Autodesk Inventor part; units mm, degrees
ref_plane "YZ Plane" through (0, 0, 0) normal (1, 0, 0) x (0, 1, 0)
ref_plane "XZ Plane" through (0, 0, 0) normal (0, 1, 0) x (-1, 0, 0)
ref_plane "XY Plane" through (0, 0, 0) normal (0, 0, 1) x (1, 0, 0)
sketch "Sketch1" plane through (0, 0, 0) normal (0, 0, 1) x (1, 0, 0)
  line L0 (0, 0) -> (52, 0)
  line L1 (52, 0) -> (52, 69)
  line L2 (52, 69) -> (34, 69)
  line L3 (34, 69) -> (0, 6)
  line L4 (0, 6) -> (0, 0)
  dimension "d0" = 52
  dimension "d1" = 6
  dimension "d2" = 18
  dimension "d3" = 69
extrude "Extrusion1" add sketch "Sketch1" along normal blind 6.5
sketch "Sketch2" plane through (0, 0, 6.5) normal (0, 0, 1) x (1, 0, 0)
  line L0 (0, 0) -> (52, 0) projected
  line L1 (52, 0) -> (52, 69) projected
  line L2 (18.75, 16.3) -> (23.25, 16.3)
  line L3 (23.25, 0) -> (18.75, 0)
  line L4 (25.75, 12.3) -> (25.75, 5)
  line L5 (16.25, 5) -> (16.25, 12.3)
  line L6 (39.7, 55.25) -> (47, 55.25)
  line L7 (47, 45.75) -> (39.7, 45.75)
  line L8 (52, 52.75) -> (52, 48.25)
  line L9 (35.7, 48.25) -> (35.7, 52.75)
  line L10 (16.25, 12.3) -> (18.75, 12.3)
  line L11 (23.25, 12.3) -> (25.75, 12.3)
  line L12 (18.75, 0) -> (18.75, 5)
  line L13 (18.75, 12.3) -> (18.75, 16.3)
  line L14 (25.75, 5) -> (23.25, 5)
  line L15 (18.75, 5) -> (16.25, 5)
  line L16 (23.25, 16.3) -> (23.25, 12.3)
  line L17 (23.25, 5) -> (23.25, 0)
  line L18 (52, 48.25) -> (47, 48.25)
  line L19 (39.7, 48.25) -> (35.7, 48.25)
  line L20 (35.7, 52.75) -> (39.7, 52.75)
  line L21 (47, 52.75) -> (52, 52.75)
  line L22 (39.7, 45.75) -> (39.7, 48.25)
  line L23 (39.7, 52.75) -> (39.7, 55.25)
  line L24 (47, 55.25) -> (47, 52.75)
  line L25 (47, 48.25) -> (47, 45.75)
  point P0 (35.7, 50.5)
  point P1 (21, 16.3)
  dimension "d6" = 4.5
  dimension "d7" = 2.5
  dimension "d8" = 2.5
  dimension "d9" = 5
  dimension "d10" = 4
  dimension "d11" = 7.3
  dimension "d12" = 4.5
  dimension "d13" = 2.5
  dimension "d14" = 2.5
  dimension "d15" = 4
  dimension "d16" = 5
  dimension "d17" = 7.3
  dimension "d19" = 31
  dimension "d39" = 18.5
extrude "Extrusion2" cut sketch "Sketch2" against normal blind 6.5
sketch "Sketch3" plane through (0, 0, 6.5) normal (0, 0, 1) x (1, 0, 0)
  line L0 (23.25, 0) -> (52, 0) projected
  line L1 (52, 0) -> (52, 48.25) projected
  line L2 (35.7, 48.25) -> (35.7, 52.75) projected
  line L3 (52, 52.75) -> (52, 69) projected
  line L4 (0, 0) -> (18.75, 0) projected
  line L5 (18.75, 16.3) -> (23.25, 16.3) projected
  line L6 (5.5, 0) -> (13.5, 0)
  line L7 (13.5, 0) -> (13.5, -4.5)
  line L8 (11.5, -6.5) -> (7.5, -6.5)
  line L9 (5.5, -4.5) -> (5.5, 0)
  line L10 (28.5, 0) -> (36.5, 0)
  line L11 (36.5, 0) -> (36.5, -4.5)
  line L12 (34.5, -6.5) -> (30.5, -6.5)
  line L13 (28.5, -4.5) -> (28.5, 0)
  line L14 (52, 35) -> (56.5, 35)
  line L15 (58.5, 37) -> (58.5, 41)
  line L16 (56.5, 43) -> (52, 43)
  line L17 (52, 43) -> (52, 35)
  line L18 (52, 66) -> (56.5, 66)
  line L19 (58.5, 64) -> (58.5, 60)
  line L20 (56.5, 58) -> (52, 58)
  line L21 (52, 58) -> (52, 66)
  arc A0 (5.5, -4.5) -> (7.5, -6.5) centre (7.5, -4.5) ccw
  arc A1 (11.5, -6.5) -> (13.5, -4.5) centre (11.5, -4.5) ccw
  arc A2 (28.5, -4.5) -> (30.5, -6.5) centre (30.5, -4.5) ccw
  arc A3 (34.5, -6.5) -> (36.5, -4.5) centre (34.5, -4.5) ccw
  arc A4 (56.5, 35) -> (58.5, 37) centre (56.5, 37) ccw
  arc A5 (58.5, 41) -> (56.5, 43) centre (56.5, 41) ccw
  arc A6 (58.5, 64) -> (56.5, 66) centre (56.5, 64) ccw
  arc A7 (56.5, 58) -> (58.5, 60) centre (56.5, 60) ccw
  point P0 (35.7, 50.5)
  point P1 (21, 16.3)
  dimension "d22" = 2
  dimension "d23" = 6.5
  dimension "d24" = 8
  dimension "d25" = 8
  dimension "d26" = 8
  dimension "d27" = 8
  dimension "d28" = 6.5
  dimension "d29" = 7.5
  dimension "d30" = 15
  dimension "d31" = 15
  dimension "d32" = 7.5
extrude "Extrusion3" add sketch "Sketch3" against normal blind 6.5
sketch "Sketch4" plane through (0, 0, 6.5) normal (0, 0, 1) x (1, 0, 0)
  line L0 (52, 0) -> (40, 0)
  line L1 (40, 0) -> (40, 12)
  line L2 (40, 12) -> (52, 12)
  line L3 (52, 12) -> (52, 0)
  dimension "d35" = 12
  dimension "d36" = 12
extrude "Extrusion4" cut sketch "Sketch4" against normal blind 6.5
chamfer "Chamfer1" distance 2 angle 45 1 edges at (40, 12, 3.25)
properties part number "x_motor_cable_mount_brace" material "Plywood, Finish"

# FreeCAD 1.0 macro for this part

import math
import FreeCAD as App
import Part
import Sketcher

V = App.Vector
Q = App.Units.Quantity


def edges_at(feature, points):
    """Names of the edges that pass closest to the given points."""
    edges = feature.Shape.Edges
    near = lambda p: min(range(len(edges)), key=lambda i: edges[i].distToShape(Part.Vertex(*p))[0])
    return sorted({f"Edge{near(p) + 1}" for p in points})

doc = App.newDocument("Part")
body = doc.addObject("PartDesign::Body", "Body")

sketch1 = body.newObject("Sketcher::SketchObject", "Sketch")
sketch1.AttachmentSupport = (doc.getObject("XY_Plane"), [""])
sketch1.MapMode = "FlatFace"
sketch1.addGeometry([
    Part.LineSegment(V(0, 6, 0), V(0, 0, 0)),
    Part.LineSegment(V(0, 0, 0), V(52, 0, 0)),
    Part.LineSegment(V(52, 0, 0), V(52, 69, 0)),
    Part.LineSegment(V(52, 69, 0), V(34, 69, 0)),
    Part.LineSegment(V(34, 69, 0), V(0, 6, 0)),
], False)
sketch1.addConstraint([
    Sketcher.Constraint("Coincident", 0, 2, 1, 1),
    Sketcher.Constraint("Coincident", 1, 2, 2, 1),
    Sketcher.Constraint("Coincident", 2, 2, 3, 1),
    Sketcher.Constraint("Coincident", 3, 2, 4, 1),
    Sketcher.Constraint("Coincident", 4, 2, 0, 1),
    Sketcher.Constraint("Vertical", 0),
    Sketcher.Constraint("Horizontal", 1),
    Sketcher.Constraint("Vertical", 2),
    Sketcher.Constraint("Horizontal", 3),
    Sketcher.Constraint("Coincident", 0, 2, -1, 1),
    Sketcher.Constraint("DistanceX", 1, 1, 1, 2, Q("52 mm")),
    Sketcher.Constraint("DistanceX", 3, 2, 3, 1, Q("18 mm")),
    Sketcher.Constraint("DistanceY", 0, 2, 0, 1, Q("6 mm")),
    Sketcher.Constraint("DistanceY", 2, 1, 2, 2, Q("69 mm")),
])
pad1 = body.newObject("PartDesign::Pad", "Pad")
pad1.Profile = sketch1
pad1.Length = 6.5

sketch2 = body.newObject("Sketcher::SketchObject", "Sketch001")
sketch2.AttachmentSupport = (doc.getObject("XY_Plane"), [""])
sketch2.MapMode = "FlatFace"
sketch2.AttachmentOffset = App.Placement(V(0, 0, 6.5), App.Rotation())
sketch2.addGeometry([
    Part.LineSegment(V(18.75, 5, 0), V(18.75, 0, 0)),
    Part.LineSegment(V(18.75, 0, 0), V(23.25, 0, 0)),
    Part.LineSegment(V(23.25, 0, 0), V(23.25, 5, 0)),
    Part.LineSegment(V(23.25, 5, 0), V(25.75, 5, 0)),
    Part.LineSegment(V(25.75, 5, 0), V(25.75, 12.3, 0)),
    Part.LineSegment(V(25.75, 12.3, 0), V(23.25, 12.3, 0)),
    Part.LineSegment(V(23.25, 12.3, 0), V(23.25, 16.3, 0)),
    Part.LineSegment(V(23.25, 16.3, 0), V(18.75, 16.3, 0)),
    Part.LineSegment(V(18.75, 16.3, 0), V(18.75, 12.3, 0)),
    Part.LineSegment(V(18.75, 12.3, 0), V(16.25, 12.3, 0)),
    Part.LineSegment(V(16.25, 12.3, 0), V(16.25, 5, 0)),
    Part.LineSegment(V(16.25, 5, 0), V(18.75, 5, 0)),
    Part.LineSegment(V(47, 48.25, 0), V(52, 48.25, 0)),
    Part.LineSegment(V(52, 48.25, 0), V(52, 52.75, 0)),
    Part.LineSegment(V(52, 52.75, 0), V(47, 52.75, 0)),
    Part.LineSegment(V(47, 52.75, 0), V(47, 55.25, 0)),
    Part.LineSegment(V(47, 55.25, 0), V(39.7, 55.25, 0)),
    Part.LineSegment(V(39.7, 55.25, 0), V(39.7, 52.75, 0)),
    Part.LineSegment(V(39.7, 52.75, 0), V(35.7, 52.75, 0)),
    Part.LineSegment(V(35.7, 52.75, 0), V(35.7, 48.25, 0)),
    Part.LineSegment(V(35.7, 48.25, 0), V(39.7, 48.25, 0)),
    Part.LineSegment(V(39.7, 48.25, 0), V(39.7, 45.75, 0)),
    Part.LineSegment(V(39.7, 45.75, 0), V(47, 45.75, 0)),
    Part.LineSegment(V(47, 45.75, 0), V(47, 48.25, 0)),
], False)
sketch2.addConstraint([
    Sketcher.Constraint("Coincident", 0, 2, 1, 1),
    Sketcher.Constraint("Coincident", 1, 2, 2, 1),
    Sketcher.Constraint("Coincident", 2, 2, 3, 1),
    Sketcher.Constraint("Coincident", 3, 2, 4, 1),
    Sketcher.Constraint("Coincident", 4, 2, 5, 1),
    Sketcher.Constraint("Coincident", 5, 2, 6, 1),
    Sketcher.Constraint("Coincident", 6, 2, 7, 1),
    Sketcher.Constraint("Coincident", 7, 2, 8, 1),
    Sketcher.Constraint("Coincident", 8, 2, 9, 1),
    Sketcher.Constraint("Coincident", 9, 2, 10, 1),
    Sketcher.Constraint("Coincident", 10, 2, 11, 1),
    Sketcher.Constraint("Coincident", 11, 2, 0, 1),
    Sketcher.Constraint("Coincident", 12, 2, 13, 1),
    Sketcher.Constraint("Coincident", 13, 2, 14, 1),
    Sketcher.Constraint("Coincident", 14, 2, 15, 1),
    Sketcher.Constraint("Coincident", 15, 2, 16, 1),
    Sketcher.Constraint("Coincident", 16, 2, 17, 1),
    Sketcher.Constraint("Coincident", 17, 2, 18, 1),
    Sketcher.Constraint("Coincident", 18, 2, 19, 1),
    Sketcher.Constraint("Coincident", 19, 2, 20, 1),
    Sketcher.Constraint("Coincident", 20, 2, 21, 1),
    Sketcher.Constraint("Coincident", 21, 2, 22, 1),
    Sketcher.Constraint("Coincident", 22, 2, 23, 1),
    Sketcher.Constraint("Coincident", 23, 2, 12, 1),
    Sketcher.Constraint("Vertical", 0),
    Sketcher.Constraint("Horizontal", 1),
    Sketcher.Constraint("Vertical", 2),
    Sketcher.Constraint("Horizontal", 3),
    Sketcher.Constraint("Vertical", 4),
    Sketcher.Constraint("Horizontal", 5),
    Sketcher.Constraint("Vertical", 6),
    Sketcher.Constraint("Horizontal", 7),
    Sketcher.Constraint("Vertical", 8),
    Sketcher.Constraint("Horizontal", 9),
    Sketcher.Constraint("Vertical", 10),
    Sketcher.Constraint("Horizontal", 11),
    Sketcher.Constraint("Horizontal", 12),
    Sketcher.Constraint("Vertical", 13),
    Sketcher.Constraint("Horizontal", 14),
    Sketcher.Constraint("Vertical", 15),
    Sketcher.Constraint("Horizontal", 16),
    Sketcher.Constraint("Vertical", 17),
    Sketcher.Constraint("Horizontal", 18),
    Sketcher.Constraint("Vertical", 19),
    Sketcher.Constraint("Horizontal", 20),
    Sketcher.Constraint("Vertical", 21),
    Sketcher.Constraint("Horizontal", 22),
    Sketcher.Constraint("Vertical", 23),
    Sketcher.Constraint("PointOnObject", 0, 2, -1),
    Sketcher.Constraint("Horizontal", 5, 2, 8, 2),
    Sketcher.Constraint("Horizontal", 3, 2, 10, 2),
    Sketcher.Constraint("Horizontal", 14, 2, 17, 2),
    Sketcher.Constraint("Horizontal", 12, 2, 19, 2),
    Sketcher.Constraint("Vertical", 2, 2, 5, 2),
    Sketcher.Constraint("Vertical", 0, 2, 7, 2),
    Sketcher.Constraint("Vertical", 17, 2, 20, 2),
    Sketcher.Constraint("Vertical", 15, 2, 22, 2),
    Sketcher.Constraint("Equal", 5, 9),
    Sketcher.Constraint("Equal", 14, 0),
    Sketcher.Constraint("Equal", 22, 4),
    Sketcher.Constraint("Equal", 20, 6),
    Sketcher.Constraint("Equal", 7, 13),
    Sketcher.Constraint("Equal", 11, 15),
    Sketcher.Constraint("Equal", 17, 21),
    Sketcher.Constraint("DistanceX", 12, 1, 12, 2, Q("5 mm")),
    Sketcher.Constraint("DistanceX", 18, 2, 18, 1, Q("4 mm")),
    Sketcher.Constraint("DistanceX", 1, 1, 1, 2, Q("4.5 mm")),
    Sketcher.Constraint("DistanceX", 3, 1, 3, 2, Q("2.5 mm")),
    Sketcher.Constraint("DistanceX", 16, 2, 16, 1, Q("7.3 mm")),
    Sketcher.Constraint("DistanceX", -1, 1, 12, 2, Q("52 mm")),
    Sketcher.Constraint("DistanceX", -1, 1, 0, 2, Q("18.75 mm")),
    Sketcher.Constraint("DistanceY", -1, 1, 12, 2, Q("48.25 mm")),
])
pocket1 = body.newObject("PartDesign::Pocket", "Pocket")
pocket1.Profile = sketch2
pocket1.Length = 6.5

sketch3 = body.newObject("Sketcher::SketchObject", "Sketch002")
sketch3.AttachmentSupport = (doc.getObject("XY_Plane"), [""])
sketch3.MapMode = "FlatFace"
sketch3.AttachmentOffset = App.Placement(V(0, 0, 6.5), App.Rotation())
sketch3.addGeometry([
    Part.LineSegment(V(52, 43, 0), V(52, 35, 0)),
    Part.LineSegment(V(52, 35, 0), V(56.5, 35, 0)),
    Part.ArcOfCircle(Part.Circle(V(56.5, 37, 0), V(0, 0, 1), 2), math.radians(-90), math.radians(0)),
    Part.LineSegment(V(58.5, 37, 0), V(58.5, 41, 0)),
    Part.ArcOfCircle(Part.Circle(V(56.5, 41, 0), V(0, 0, 1), 2), math.radians(0), math.radians(90)),
    Part.LineSegment(V(56.5, 43, 0), V(52, 43, 0)),
    Part.LineSegment(V(36.5, 0, 0), V(28.5, 0, 0)),
    Part.LineSegment(V(28.5, 0, 0), V(28.5, -4.5, 0)),
    Part.ArcOfCircle(Part.Circle(V(30.5, -4.5, 0), V(0, 0, 1), 2), math.radians(180), math.radians(270)),
    Part.LineSegment(V(30.5, -6.5, 0), V(34.5, -6.5, 0)),
    Part.ArcOfCircle(Part.Circle(V(34.5, -4.5, 0), V(0, 0, 1), 2), math.radians(-90), math.radians(0)),
    Part.LineSegment(V(36.5, -4.5, 0), V(36.5, 0, 0)),
    Part.LineSegment(V(52, 66, 0), V(52, 58, 0)),
    Part.LineSegment(V(52, 58, 0), V(56.5, 58, 0)),
    Part.ArcOfCircle(Part.Circle(V(56.5, 60, 0), V(0, 0, 1), 2), math.radians(-90), math.radians(0)),
    Part.LineSegment(V(58.5, 60, 0), V(58.5, 64, 0)),
    Part.ArcOfCircle(Part.Circle(V(56.5, 64, 0), V(0, 0, 1), 2), math.radians(0), math.radians(90)),
    Part.LineSegment(V(56.5, 66, 0), V(52, 66, 0)),
    Part.LineSegment(V(13.5, 0, 0), V(5.5, 0, 0)),
    Part.LineSegment(V(5.5, 0, 0), V(5.5, -4.5, 0)),
    Part.ArcOfCircle(Part.Circle(V(7.5, -4.5, 0), V(0, 0, 1), 2), math.radians(180), math.radians(270)),
    Part.LineSegment(V(7.5, -6.5, 0), V(11.5, -6.5, 0)),
    Part.ArcOfCircle(Part.Circle(V(11.5, -4.5, 0), V(0, 0, 1), 2), math.radians(-90), math.radians(0)),
    Part.LineSegment(V(13.5, -4.5, 0), V(13.5, 0, 0)),
], False)
sketch3.addConstraint([
    Sketcher.Constraint("Coincident", 0, 2, 1, 1),
    Sketcher.Constraint("Tangent", 1, 2, 2, 1),
    Sketcher.Constraint("Tangent", 2, 2, 3, 1),
    Sketcher.Constraint("Tangent", 3, 2, 4, 1),
    Sketcher.Constraint("Tangent", 4, 2, 5, 1),
    Sketcher.Constraint("Coincident", 5, 2, 0, 1),
    Sketcher.Constraint("Coincident", 6, 2, 7, 1),
    Sketcher.Constraint("Tangent", 7, 2, 8, 1),
    Sketcher.Constraint("Tangent", 8, 2, 9, 1),
    Sketcher.Constraint("Tangent", 9, 2, 10, 1),
    Sketcher.Constraint("Tangent", 10, 2, 11, 1),
    Sketcher.Constraint("Coincident", 11, 2, 6, 1),
    Sketcher.Constraint("Coincident", 12, 2, 13, 1),
    Sketcher.Constraint("Tangent", 13, 2, 14, 1),
    Sketcher.Constraint("Tangent", 14, 2, 15, 1),
    Sketcher.Constraint("Tangent", 15, 2, 16, 1),
    Sketcher.Constraint("Tangent", 16, 2, 17, 1),
    Sketcher.Constraint("Coincident", 17, 2, 12, 1),
    Sketcher.Constraint("Coincident", 18, 2, 19, 1),
    Sketcher.Constraint("Tangent", 19, 2, 20, 1),
    Sketcher.Constraint("Tangent", 20, 2, 21, 1),
    Sketcher.Constraint("Tangent", 21, 2, 22, 1),
    Sketcher.Constraint("Tangent", 22, 2, 23, 1),
    Sketcher.Constraint("Coincident", 23, 2, 18, 1),
    Sketcher.Constraint("Vertical", 0),
    Sketcher.Constraint("Horizontal", 1),
    Sketcher.Constraint("Vertical", 3),
    Sketcher.Constraint("Horizontal", 5),
    Sketcher.Constraint("Horizontal", 6),
    Sketcher.Constraint("Vertical", 7),
    Sketcher.Constraint("Horizontal", 9),
    Sketcher.Constraint("Vertical", 11),
    Sketcher.Constraint("Vertical", 12),
    Sketcher.Constraint("Horizontal", 13),
    Sketcher.Constraint("Vertical", 15),
    Sketcher.Constraint("Horizontal", 17),
    Sketcher.Constraint("Horizontal", 18),
    Sketcher.Constraint("Vertical", 19),
    Sketcher.Constraint("Horizontal", 21),
    Sketcher.Constraint("Vertical", 23),
    Sketcher.Constraint("Equal", 2, 4),
    Sketcher.Constraint("Equal", 4, 8),
    Sketcher.Constraint("Equal", 8, 10),
    Sketcher.Constraint("Equal", 10, 14),
    Sketcher.Constraint("Equal", 14, 16),
    Sketcher.Constraint("Equal", 16, 20),
    Sketcher.Constraint("Equal", 20, 22),
    Sketcher.Constraint("PointOnObject", 6, 2, -1),
    Sketcher.Constraint("PointOnObject", 18, 2, -1),
    Sketcher.Constraint("Horizontal", 10, 3, 20, 3),
    Sketcher.Constraint("Vertical", 4, 3, 14, 3),
    Sketcher.Constraint("Vertical", 5, 2, 12, 2),
    Sketcher.Constraint("Equal", 6, 18),
    Sketcher.Constraint("Equal", 18, 0),
    Sketcher.Constraint("Equal", 17, 7),
    Sketcher.Constraint("Equal", 0, 12),
    Sketcher.Constraint("Radius", 2, Q("2 mm")),
    Sketcher.Constraint("DistanceX", 6, 2, 6, 1, Q("8 mm")),
    Sketcher.Constraint("DistanceY", 5, 2, 12, 2, Q("15 mm")),
    Sketcher.Constraint("DistanceX", -1, 1, 20, 3, Q("7.5 mm")),
    Sketcher.Constraint("DistanceY", 8, 2, -1, 1, Q("6.5 mm")),
    Sketcher.Constraint("DistanceY", -1, 1, 2, 3, Q("37 mm")),
    Sketcher.Constraint("DistanceX", -1, 1, 0, 2, Q("52 mm")),
    Sketcher.Constraint("DistanceX", 8, 3, 2, 3, Q("26 mm")),
])
pad2 = body.newObject("PartDesign::Pad", "Pad001")
pad2.Profile = sketch3
pad2.Length = 6.5
pad2.Reversed = True

sketch4 = body.newObject("Sketcher::SketchObject", "Sketch003")
sketch4.AttachmentSupport = (doc.getObject("XY_Plane"), [""])
sketch4.MapMode = "FlatFace"
sketch4.AttachmentOffset = App.Placement(V(0, 0, 6.5), App.Rotation())
sketch4.addGeometry([
    Part.LineSegment(V(40, 0, 0), V(52, 0, 0)),
    Part.LineSegment(V(52, 0, 0), V(52, 12, 0)),
    Part.LineSegment(V(52, 12, 0), V(40, 12, 0)),
    Part.LineSegment(V(40, 12, 0), V(40, 0, 0)),
], False)
sketch4.addConstraint([
    Sketcher.Constraint("Coincident", 0, 2, 1, 1),
    Sketcher.Constraint("Coincident", 1, 2, 2, 1),
    Sketcher.Constraint("Coincident", 2, 2, 3, 1),
    Sketcher.Constraint("Coincident", 3, 2, 0, 1),
    Sketcher.Constraint("Horizontal", 0),
    Sketcher.Constraint("Vertical", 1),
    Sketcher.Constraint("Horizontal", 2),
    Sketcher.Constraint("Vertical", 3),
    Sketcher.Constraint("PointOnObject", 0, 2, -1),
    Sketcher.Constraint("Equal", 2, 1),
    Sketcher.Constraint("DistanceX", 0, 1, 0, 2, Q("12 mm")),
    Sketcher.Constraint("DistanceX", -1, 1, 0, 2, Q("52 mm")),
])
pocket2 = body.newObject("PartDesign::Pocket", "Pocket001")
pocket2.Profile = sketch4
pocket2.Length = 6.5
doc.recompute()

chamfer = body.newObject("PartDesign::Chamfer", "Chamfer")
chamfer.Base = (pocket2, edges_at(pocket2, [(40, 12, 3.25)]))
chamfer.Size = 2

doc.recompute()
